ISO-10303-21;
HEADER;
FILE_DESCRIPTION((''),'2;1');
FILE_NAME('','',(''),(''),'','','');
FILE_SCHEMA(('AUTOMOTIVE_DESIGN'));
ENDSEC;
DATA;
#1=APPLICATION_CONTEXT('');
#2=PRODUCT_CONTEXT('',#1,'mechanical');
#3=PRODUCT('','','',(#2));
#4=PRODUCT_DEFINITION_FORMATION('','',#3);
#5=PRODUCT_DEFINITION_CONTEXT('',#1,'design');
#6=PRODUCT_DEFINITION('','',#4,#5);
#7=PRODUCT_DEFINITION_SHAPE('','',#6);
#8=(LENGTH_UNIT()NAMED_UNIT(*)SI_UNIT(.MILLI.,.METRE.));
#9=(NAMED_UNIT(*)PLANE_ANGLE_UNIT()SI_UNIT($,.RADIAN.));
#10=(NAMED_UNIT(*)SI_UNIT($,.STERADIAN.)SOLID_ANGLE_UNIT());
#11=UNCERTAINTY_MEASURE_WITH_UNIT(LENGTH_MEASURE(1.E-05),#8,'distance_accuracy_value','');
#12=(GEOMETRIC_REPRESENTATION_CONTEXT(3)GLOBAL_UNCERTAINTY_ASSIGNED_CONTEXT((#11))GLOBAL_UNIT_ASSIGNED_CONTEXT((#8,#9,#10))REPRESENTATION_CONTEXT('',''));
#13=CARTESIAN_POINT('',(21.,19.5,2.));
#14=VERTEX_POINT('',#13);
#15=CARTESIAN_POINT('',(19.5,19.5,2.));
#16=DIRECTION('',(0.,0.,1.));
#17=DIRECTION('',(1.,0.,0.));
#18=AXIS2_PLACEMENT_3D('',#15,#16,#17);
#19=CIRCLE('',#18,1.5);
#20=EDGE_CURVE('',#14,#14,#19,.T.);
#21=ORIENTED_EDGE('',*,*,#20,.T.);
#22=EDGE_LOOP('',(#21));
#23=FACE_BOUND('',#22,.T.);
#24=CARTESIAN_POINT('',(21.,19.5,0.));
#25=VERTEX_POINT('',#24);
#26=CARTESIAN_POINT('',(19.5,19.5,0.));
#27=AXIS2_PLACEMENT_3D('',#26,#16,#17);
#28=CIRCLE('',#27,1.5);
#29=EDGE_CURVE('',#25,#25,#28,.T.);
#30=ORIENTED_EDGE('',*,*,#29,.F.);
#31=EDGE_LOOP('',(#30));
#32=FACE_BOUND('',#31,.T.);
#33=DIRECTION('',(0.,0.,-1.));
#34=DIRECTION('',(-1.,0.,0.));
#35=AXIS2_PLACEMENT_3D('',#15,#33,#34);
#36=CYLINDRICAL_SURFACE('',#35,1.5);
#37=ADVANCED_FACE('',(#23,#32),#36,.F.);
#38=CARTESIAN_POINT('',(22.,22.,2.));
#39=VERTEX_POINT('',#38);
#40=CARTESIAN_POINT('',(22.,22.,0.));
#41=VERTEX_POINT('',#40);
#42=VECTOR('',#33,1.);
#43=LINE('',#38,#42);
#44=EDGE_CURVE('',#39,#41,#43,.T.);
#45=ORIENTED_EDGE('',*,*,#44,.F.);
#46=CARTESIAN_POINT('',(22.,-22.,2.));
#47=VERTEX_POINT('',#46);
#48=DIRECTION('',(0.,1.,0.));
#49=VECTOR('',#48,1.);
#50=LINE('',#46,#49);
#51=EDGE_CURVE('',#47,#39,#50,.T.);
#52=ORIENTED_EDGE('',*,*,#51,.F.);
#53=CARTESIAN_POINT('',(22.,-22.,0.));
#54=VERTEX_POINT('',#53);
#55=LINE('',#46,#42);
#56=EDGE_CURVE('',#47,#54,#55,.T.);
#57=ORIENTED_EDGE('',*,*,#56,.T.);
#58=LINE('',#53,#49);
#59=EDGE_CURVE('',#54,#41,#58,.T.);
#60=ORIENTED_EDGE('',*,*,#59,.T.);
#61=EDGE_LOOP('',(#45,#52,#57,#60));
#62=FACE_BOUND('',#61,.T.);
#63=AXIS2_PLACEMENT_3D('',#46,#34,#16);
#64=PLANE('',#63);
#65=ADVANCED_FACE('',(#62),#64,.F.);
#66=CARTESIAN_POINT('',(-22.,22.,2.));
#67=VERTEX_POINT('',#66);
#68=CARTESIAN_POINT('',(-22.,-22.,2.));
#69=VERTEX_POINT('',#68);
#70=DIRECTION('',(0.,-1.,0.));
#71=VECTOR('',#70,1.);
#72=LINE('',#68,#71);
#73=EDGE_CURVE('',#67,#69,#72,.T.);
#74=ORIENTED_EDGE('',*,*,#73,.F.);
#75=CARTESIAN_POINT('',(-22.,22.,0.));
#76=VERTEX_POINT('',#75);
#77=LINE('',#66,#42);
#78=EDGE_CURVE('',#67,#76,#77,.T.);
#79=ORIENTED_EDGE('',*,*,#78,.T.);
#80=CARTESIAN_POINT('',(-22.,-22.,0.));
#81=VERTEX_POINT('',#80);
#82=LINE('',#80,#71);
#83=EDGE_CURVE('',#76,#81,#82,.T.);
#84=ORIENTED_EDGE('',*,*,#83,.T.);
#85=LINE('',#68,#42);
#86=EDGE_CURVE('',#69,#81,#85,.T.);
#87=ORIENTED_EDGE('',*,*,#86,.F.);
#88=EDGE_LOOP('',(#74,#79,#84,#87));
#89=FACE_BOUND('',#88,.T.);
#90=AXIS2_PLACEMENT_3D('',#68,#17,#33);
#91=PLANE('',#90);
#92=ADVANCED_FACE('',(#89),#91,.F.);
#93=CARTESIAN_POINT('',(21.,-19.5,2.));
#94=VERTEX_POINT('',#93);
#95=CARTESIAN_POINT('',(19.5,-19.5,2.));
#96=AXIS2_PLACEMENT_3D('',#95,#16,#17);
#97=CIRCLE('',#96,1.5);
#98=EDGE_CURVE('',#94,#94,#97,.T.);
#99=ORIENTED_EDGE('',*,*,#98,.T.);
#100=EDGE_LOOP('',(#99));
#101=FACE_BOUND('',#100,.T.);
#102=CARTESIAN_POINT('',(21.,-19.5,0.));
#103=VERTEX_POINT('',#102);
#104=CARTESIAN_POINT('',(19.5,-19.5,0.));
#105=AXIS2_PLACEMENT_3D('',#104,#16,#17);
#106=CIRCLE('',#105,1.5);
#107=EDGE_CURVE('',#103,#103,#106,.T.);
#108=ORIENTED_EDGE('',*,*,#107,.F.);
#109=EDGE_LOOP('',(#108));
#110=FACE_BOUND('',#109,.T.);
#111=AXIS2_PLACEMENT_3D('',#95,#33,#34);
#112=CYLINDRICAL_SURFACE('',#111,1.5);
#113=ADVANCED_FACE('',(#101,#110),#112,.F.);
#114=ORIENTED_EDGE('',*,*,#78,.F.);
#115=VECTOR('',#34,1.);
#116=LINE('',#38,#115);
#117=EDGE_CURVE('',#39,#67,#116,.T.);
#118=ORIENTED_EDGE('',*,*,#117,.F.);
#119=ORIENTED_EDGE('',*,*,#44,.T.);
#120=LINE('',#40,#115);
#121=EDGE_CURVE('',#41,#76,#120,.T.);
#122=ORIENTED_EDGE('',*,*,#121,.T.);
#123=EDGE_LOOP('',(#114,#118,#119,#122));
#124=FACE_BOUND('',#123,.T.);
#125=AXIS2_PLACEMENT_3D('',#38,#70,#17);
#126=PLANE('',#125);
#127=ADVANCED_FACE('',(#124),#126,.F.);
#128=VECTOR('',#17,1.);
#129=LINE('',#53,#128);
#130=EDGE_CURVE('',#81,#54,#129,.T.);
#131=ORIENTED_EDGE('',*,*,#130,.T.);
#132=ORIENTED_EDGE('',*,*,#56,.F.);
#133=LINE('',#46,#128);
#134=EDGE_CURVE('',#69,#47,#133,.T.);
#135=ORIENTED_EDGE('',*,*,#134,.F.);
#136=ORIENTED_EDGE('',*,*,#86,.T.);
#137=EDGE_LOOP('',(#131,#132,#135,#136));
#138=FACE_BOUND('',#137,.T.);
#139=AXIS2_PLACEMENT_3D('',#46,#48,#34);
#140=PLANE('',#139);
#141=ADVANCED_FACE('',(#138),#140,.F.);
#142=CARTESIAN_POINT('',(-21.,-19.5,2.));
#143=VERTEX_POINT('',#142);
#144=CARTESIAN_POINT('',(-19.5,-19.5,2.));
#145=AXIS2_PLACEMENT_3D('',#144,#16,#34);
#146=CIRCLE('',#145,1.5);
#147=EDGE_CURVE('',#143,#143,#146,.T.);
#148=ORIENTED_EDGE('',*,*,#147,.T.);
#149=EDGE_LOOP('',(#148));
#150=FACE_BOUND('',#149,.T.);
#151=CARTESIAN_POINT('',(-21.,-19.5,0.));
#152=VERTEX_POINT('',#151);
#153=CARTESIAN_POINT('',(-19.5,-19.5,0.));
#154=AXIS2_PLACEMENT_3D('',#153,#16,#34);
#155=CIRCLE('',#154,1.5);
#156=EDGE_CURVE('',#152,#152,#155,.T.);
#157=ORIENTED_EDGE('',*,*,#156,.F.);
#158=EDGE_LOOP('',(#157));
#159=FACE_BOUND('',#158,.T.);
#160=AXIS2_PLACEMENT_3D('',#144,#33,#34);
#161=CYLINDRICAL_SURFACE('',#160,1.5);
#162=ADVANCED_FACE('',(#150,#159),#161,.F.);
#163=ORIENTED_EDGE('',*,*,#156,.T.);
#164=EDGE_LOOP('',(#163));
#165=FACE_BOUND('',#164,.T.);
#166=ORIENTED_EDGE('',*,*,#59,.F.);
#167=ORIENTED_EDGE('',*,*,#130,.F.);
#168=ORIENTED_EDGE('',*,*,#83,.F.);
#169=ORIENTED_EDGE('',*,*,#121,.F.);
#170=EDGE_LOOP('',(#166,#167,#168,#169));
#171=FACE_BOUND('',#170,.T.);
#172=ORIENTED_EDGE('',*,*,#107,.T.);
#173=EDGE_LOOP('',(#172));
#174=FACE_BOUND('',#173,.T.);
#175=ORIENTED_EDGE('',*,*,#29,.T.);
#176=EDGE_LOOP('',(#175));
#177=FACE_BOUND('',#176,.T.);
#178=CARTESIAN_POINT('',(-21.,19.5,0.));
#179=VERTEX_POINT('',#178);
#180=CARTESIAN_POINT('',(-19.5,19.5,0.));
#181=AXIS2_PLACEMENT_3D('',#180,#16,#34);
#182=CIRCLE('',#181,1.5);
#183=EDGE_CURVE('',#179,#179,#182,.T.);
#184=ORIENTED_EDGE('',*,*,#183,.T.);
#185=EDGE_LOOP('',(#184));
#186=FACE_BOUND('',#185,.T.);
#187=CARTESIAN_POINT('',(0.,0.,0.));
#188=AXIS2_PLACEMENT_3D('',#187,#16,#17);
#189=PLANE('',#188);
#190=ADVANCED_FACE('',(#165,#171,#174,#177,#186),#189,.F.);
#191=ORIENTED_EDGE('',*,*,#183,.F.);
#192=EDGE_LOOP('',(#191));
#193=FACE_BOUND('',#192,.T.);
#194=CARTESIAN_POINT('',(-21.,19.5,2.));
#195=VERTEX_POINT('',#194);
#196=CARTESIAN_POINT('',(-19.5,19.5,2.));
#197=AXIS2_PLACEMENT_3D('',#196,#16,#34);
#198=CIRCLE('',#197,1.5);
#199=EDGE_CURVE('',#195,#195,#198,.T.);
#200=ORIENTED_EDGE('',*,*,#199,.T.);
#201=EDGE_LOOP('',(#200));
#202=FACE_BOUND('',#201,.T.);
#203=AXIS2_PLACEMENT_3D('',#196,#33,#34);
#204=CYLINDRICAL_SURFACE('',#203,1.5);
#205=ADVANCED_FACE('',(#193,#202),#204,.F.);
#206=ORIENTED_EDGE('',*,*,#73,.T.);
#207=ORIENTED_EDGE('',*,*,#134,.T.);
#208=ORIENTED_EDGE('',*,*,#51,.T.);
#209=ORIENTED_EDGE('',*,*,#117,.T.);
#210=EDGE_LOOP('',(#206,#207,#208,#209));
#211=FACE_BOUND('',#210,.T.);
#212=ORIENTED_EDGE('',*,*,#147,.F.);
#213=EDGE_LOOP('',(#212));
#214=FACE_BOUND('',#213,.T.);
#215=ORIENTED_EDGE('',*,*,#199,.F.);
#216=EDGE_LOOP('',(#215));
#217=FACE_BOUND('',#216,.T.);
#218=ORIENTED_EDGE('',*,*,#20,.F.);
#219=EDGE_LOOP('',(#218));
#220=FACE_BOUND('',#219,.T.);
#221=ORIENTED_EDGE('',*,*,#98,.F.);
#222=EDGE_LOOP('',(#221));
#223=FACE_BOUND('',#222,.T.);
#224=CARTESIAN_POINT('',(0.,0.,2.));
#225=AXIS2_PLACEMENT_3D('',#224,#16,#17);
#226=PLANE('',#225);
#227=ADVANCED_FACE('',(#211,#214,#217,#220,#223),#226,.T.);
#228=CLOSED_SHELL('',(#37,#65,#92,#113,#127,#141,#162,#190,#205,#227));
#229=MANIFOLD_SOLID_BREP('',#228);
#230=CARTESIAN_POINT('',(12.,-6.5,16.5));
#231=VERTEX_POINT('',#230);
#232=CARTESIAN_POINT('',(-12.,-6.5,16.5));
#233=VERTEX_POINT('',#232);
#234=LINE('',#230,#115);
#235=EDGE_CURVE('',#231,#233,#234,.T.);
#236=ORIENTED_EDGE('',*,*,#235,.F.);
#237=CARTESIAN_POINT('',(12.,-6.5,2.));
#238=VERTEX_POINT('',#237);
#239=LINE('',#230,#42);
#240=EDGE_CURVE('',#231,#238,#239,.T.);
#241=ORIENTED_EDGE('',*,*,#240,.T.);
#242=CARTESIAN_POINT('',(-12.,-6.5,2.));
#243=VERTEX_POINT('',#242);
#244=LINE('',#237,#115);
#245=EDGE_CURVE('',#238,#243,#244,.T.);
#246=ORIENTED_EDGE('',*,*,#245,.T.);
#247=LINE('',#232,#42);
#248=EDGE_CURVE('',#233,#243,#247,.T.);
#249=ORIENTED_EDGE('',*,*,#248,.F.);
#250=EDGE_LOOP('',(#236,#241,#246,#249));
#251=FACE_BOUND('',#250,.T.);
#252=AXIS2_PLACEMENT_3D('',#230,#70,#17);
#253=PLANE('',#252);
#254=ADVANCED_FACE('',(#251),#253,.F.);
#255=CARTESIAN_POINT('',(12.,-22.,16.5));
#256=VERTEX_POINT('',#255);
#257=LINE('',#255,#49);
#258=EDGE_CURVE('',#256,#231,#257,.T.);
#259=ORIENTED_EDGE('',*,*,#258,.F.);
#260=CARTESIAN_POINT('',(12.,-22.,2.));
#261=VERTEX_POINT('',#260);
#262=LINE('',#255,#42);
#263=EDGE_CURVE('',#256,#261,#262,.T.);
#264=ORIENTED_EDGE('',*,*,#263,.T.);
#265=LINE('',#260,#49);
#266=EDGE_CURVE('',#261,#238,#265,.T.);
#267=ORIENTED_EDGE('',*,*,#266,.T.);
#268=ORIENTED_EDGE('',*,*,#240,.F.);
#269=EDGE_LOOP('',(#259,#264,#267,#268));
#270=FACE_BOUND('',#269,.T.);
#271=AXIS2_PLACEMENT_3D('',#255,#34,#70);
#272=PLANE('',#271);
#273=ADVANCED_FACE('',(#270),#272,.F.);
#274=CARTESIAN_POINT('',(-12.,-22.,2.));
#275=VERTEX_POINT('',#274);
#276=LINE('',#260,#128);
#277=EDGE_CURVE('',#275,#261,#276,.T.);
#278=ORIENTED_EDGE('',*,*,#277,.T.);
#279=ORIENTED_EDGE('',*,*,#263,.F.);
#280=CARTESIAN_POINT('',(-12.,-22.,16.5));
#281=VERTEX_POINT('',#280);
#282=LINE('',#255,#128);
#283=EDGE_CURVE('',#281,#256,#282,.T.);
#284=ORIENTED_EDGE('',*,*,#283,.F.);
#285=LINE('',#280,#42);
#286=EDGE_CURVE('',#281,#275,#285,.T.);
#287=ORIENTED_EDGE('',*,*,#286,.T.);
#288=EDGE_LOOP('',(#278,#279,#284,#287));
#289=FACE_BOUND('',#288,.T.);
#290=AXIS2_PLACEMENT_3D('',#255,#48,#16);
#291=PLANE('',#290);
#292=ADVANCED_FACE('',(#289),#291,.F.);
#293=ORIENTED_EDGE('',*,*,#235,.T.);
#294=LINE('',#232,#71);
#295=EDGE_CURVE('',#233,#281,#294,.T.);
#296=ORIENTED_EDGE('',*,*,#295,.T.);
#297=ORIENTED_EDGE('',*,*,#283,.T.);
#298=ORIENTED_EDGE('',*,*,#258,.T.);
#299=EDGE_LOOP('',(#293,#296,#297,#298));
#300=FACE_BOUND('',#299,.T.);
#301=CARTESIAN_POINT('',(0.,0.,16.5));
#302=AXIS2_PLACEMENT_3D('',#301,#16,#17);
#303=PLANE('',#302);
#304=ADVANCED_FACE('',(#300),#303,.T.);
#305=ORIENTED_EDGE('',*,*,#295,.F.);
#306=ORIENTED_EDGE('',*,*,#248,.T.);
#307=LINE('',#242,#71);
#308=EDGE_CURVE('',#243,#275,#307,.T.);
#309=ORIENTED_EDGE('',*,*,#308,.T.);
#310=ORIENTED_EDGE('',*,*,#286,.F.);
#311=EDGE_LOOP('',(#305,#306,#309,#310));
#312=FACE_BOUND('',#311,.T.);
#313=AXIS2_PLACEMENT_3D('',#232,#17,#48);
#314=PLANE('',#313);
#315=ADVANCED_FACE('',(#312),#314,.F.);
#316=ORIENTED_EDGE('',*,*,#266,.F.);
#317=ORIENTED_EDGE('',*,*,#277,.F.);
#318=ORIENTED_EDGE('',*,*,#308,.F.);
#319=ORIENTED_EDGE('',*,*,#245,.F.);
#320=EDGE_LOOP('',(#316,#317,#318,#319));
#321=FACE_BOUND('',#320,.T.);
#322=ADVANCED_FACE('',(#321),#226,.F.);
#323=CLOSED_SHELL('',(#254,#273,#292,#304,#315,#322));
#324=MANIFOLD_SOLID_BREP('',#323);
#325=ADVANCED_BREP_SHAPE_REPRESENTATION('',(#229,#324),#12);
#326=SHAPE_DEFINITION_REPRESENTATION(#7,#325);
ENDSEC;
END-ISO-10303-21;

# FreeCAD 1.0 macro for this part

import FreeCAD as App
import Part
import Sketcher
from FreeCAD import Vector

doc = App.newDocument("Part")
body = doc.addObject("PartDesign::Body", "Body")

# Sketch on XY plane
sketch1 = body.newObject("Sketcher::SketchObject", "Sketch")
sketch1.AttachmentSupport = (doc.getObject("XY_Plane"), [""])
sketch1.MapMode = "FlatFace"
sketch1.addGeometry([
    Part.LineSegment(Vector(-22, 22, 0), Vector(-22, -22, 0)),  # 0
    Part.LineSegment(Vector(-22, -22, 0), Vector(22, -22, 0)),  # 1
    Part.LineSegment(Vector(22, -22, 0), Vector(22, 22, 0)),  # 2
    Part.LineSegment(Vector(22, 22, 0), Vector(-22, 22, 0)),  # 3
    Part.Circle(Vector(-19.5, -19.5, 0), Vector(0, 0, 1), 1.5),  # 4
    Part.Circle(Vector(19.5, -19.5, 0), Vector(0, 0, 1), 1.5),  # 5
    Part.Circle(Vector(-19.5, 19.5, 0), Vector(0, 0, 1), 1.5),  # 6
    Part.Circle(Vector(19.5, 19.5, 0), Vector(0, 0, 1), 1.5),  # 7
], False)
sketch1.addConstraint([
    Sketcher.Constraint("Coincident", 0, 2, 1, 1),
    Sketcher.Constraint("Coincident", 1, 2, 2, 1),
    Sketcher.Constraint("Coincident", 2, 2, 3, 1),
    Sketcher.Constraint("Coincident", 3, 2, 0, 1),
    Sketcher.Constraint("Vertical", 0),
    Sketcher.Constraint("Horizontal", 1),
    Sketcher.Constraint("Vertical", 2),
    Sketcher.Constraint("Horizontal", 3),
    Sketcher.Constraint("Equal", 4, 5),
    Sketcher.Constraint("Equal", 5, 6),
    Sketcher.Constraint("Equal", 6, 7),
    Sketcher.Constraint("Symmetric", 5, 3, 6, 3, -1, 1),
    Sketcher.Constraint("Symmetric", 4, 3, 7, 3, -1, 1),
    Sketcher.Constraint("Symmetric", 0, 2, 2, 2, -1, 1),
    Sketcher.Constraint("Symmetric", 4, 3, 5, 3, -2),
    Sketcher.Constraint("Equal", 3, 0),
    Sketcher.Constraint("Diameter", 4, 3.0),
    Sketcher.Constraint("DistanceX", 1, 1, 1, 2, 44.0),
    Sketcher.Constraint("DistanceX", 4, 3, 5, 3, 39.0),
    Sketcher.Constraint("DistanceY", 4, 3, 6, 3, 39.0),
])
pad1 = body.newObject("PartDesign::Pad", "Pad")
pad1.Profile = sketch1
pad1.Length = 2
body2 = doc.addObject("PartDesign::Body", "Body001")

# Sketch on XY plane
sketch2 = body2.newObject("Sketcher::SketchObject", "Sketch001")
sketch2.AttachmentSupport = (doc.getObject("XY_Plane001"), [""])
sketch2.MapMode = "FlatFace"
sketch2.AttachmentOffset = App.Placement(Vector(0, 0, 2), App.Rotation())
sketch2.addGeometry([
    Part.LineSegment(Vector(-12, -6, 0), Vector(-12, -22, 0)),
    Part.LineSegment(Vector(-12, -22, 0), Vector(12, -22, 0)),
    Part.LineSegment(Vector(12, -22, 0), Vector(12, -6, 0)),
    Part.LineSegment(Vector(12, -6, 0), Vector(-12, -6, 0)),
], False)
sketch2.addConstraint([
    Sketcher.Constraint("Coincident", 0, 2, 1, 1),
    Sketcher.Constraint("Coincident", 1, 2, 2, 1),
    Sketcher.Constraint("Coincident", 2, 2, 3, 1),
    Sketcher.Constraint("Coincident", 3, 2, 0, 1),
    Sketcher.Constraint("Vertical", 0),
    Sketcher.Constraint("Horizontal", 1),
    Sketcher.Constraint("Vertical", 2),
    Sketcher.Constraint("Horizontal", 3),
    Sketcher.Constraint("DistanceX", 1, 1, 1, 2, 24.0),
    Sketcher.Constraint("DistanceY", 0, 2, 0, 1, 15.5),
    Sketcher.Constraint("DistanceX", 0, 2, -1, 1, 12.0),
    Sketcher.Constraint("DistanceY", 0, 2, -1, 1, 22.0),
])
pad2 = body2.newObject("PartDesign::Pad", "Pad001")
pad2.Profile = sketch2
pad2.Length = 14.5

doc.recompute()
